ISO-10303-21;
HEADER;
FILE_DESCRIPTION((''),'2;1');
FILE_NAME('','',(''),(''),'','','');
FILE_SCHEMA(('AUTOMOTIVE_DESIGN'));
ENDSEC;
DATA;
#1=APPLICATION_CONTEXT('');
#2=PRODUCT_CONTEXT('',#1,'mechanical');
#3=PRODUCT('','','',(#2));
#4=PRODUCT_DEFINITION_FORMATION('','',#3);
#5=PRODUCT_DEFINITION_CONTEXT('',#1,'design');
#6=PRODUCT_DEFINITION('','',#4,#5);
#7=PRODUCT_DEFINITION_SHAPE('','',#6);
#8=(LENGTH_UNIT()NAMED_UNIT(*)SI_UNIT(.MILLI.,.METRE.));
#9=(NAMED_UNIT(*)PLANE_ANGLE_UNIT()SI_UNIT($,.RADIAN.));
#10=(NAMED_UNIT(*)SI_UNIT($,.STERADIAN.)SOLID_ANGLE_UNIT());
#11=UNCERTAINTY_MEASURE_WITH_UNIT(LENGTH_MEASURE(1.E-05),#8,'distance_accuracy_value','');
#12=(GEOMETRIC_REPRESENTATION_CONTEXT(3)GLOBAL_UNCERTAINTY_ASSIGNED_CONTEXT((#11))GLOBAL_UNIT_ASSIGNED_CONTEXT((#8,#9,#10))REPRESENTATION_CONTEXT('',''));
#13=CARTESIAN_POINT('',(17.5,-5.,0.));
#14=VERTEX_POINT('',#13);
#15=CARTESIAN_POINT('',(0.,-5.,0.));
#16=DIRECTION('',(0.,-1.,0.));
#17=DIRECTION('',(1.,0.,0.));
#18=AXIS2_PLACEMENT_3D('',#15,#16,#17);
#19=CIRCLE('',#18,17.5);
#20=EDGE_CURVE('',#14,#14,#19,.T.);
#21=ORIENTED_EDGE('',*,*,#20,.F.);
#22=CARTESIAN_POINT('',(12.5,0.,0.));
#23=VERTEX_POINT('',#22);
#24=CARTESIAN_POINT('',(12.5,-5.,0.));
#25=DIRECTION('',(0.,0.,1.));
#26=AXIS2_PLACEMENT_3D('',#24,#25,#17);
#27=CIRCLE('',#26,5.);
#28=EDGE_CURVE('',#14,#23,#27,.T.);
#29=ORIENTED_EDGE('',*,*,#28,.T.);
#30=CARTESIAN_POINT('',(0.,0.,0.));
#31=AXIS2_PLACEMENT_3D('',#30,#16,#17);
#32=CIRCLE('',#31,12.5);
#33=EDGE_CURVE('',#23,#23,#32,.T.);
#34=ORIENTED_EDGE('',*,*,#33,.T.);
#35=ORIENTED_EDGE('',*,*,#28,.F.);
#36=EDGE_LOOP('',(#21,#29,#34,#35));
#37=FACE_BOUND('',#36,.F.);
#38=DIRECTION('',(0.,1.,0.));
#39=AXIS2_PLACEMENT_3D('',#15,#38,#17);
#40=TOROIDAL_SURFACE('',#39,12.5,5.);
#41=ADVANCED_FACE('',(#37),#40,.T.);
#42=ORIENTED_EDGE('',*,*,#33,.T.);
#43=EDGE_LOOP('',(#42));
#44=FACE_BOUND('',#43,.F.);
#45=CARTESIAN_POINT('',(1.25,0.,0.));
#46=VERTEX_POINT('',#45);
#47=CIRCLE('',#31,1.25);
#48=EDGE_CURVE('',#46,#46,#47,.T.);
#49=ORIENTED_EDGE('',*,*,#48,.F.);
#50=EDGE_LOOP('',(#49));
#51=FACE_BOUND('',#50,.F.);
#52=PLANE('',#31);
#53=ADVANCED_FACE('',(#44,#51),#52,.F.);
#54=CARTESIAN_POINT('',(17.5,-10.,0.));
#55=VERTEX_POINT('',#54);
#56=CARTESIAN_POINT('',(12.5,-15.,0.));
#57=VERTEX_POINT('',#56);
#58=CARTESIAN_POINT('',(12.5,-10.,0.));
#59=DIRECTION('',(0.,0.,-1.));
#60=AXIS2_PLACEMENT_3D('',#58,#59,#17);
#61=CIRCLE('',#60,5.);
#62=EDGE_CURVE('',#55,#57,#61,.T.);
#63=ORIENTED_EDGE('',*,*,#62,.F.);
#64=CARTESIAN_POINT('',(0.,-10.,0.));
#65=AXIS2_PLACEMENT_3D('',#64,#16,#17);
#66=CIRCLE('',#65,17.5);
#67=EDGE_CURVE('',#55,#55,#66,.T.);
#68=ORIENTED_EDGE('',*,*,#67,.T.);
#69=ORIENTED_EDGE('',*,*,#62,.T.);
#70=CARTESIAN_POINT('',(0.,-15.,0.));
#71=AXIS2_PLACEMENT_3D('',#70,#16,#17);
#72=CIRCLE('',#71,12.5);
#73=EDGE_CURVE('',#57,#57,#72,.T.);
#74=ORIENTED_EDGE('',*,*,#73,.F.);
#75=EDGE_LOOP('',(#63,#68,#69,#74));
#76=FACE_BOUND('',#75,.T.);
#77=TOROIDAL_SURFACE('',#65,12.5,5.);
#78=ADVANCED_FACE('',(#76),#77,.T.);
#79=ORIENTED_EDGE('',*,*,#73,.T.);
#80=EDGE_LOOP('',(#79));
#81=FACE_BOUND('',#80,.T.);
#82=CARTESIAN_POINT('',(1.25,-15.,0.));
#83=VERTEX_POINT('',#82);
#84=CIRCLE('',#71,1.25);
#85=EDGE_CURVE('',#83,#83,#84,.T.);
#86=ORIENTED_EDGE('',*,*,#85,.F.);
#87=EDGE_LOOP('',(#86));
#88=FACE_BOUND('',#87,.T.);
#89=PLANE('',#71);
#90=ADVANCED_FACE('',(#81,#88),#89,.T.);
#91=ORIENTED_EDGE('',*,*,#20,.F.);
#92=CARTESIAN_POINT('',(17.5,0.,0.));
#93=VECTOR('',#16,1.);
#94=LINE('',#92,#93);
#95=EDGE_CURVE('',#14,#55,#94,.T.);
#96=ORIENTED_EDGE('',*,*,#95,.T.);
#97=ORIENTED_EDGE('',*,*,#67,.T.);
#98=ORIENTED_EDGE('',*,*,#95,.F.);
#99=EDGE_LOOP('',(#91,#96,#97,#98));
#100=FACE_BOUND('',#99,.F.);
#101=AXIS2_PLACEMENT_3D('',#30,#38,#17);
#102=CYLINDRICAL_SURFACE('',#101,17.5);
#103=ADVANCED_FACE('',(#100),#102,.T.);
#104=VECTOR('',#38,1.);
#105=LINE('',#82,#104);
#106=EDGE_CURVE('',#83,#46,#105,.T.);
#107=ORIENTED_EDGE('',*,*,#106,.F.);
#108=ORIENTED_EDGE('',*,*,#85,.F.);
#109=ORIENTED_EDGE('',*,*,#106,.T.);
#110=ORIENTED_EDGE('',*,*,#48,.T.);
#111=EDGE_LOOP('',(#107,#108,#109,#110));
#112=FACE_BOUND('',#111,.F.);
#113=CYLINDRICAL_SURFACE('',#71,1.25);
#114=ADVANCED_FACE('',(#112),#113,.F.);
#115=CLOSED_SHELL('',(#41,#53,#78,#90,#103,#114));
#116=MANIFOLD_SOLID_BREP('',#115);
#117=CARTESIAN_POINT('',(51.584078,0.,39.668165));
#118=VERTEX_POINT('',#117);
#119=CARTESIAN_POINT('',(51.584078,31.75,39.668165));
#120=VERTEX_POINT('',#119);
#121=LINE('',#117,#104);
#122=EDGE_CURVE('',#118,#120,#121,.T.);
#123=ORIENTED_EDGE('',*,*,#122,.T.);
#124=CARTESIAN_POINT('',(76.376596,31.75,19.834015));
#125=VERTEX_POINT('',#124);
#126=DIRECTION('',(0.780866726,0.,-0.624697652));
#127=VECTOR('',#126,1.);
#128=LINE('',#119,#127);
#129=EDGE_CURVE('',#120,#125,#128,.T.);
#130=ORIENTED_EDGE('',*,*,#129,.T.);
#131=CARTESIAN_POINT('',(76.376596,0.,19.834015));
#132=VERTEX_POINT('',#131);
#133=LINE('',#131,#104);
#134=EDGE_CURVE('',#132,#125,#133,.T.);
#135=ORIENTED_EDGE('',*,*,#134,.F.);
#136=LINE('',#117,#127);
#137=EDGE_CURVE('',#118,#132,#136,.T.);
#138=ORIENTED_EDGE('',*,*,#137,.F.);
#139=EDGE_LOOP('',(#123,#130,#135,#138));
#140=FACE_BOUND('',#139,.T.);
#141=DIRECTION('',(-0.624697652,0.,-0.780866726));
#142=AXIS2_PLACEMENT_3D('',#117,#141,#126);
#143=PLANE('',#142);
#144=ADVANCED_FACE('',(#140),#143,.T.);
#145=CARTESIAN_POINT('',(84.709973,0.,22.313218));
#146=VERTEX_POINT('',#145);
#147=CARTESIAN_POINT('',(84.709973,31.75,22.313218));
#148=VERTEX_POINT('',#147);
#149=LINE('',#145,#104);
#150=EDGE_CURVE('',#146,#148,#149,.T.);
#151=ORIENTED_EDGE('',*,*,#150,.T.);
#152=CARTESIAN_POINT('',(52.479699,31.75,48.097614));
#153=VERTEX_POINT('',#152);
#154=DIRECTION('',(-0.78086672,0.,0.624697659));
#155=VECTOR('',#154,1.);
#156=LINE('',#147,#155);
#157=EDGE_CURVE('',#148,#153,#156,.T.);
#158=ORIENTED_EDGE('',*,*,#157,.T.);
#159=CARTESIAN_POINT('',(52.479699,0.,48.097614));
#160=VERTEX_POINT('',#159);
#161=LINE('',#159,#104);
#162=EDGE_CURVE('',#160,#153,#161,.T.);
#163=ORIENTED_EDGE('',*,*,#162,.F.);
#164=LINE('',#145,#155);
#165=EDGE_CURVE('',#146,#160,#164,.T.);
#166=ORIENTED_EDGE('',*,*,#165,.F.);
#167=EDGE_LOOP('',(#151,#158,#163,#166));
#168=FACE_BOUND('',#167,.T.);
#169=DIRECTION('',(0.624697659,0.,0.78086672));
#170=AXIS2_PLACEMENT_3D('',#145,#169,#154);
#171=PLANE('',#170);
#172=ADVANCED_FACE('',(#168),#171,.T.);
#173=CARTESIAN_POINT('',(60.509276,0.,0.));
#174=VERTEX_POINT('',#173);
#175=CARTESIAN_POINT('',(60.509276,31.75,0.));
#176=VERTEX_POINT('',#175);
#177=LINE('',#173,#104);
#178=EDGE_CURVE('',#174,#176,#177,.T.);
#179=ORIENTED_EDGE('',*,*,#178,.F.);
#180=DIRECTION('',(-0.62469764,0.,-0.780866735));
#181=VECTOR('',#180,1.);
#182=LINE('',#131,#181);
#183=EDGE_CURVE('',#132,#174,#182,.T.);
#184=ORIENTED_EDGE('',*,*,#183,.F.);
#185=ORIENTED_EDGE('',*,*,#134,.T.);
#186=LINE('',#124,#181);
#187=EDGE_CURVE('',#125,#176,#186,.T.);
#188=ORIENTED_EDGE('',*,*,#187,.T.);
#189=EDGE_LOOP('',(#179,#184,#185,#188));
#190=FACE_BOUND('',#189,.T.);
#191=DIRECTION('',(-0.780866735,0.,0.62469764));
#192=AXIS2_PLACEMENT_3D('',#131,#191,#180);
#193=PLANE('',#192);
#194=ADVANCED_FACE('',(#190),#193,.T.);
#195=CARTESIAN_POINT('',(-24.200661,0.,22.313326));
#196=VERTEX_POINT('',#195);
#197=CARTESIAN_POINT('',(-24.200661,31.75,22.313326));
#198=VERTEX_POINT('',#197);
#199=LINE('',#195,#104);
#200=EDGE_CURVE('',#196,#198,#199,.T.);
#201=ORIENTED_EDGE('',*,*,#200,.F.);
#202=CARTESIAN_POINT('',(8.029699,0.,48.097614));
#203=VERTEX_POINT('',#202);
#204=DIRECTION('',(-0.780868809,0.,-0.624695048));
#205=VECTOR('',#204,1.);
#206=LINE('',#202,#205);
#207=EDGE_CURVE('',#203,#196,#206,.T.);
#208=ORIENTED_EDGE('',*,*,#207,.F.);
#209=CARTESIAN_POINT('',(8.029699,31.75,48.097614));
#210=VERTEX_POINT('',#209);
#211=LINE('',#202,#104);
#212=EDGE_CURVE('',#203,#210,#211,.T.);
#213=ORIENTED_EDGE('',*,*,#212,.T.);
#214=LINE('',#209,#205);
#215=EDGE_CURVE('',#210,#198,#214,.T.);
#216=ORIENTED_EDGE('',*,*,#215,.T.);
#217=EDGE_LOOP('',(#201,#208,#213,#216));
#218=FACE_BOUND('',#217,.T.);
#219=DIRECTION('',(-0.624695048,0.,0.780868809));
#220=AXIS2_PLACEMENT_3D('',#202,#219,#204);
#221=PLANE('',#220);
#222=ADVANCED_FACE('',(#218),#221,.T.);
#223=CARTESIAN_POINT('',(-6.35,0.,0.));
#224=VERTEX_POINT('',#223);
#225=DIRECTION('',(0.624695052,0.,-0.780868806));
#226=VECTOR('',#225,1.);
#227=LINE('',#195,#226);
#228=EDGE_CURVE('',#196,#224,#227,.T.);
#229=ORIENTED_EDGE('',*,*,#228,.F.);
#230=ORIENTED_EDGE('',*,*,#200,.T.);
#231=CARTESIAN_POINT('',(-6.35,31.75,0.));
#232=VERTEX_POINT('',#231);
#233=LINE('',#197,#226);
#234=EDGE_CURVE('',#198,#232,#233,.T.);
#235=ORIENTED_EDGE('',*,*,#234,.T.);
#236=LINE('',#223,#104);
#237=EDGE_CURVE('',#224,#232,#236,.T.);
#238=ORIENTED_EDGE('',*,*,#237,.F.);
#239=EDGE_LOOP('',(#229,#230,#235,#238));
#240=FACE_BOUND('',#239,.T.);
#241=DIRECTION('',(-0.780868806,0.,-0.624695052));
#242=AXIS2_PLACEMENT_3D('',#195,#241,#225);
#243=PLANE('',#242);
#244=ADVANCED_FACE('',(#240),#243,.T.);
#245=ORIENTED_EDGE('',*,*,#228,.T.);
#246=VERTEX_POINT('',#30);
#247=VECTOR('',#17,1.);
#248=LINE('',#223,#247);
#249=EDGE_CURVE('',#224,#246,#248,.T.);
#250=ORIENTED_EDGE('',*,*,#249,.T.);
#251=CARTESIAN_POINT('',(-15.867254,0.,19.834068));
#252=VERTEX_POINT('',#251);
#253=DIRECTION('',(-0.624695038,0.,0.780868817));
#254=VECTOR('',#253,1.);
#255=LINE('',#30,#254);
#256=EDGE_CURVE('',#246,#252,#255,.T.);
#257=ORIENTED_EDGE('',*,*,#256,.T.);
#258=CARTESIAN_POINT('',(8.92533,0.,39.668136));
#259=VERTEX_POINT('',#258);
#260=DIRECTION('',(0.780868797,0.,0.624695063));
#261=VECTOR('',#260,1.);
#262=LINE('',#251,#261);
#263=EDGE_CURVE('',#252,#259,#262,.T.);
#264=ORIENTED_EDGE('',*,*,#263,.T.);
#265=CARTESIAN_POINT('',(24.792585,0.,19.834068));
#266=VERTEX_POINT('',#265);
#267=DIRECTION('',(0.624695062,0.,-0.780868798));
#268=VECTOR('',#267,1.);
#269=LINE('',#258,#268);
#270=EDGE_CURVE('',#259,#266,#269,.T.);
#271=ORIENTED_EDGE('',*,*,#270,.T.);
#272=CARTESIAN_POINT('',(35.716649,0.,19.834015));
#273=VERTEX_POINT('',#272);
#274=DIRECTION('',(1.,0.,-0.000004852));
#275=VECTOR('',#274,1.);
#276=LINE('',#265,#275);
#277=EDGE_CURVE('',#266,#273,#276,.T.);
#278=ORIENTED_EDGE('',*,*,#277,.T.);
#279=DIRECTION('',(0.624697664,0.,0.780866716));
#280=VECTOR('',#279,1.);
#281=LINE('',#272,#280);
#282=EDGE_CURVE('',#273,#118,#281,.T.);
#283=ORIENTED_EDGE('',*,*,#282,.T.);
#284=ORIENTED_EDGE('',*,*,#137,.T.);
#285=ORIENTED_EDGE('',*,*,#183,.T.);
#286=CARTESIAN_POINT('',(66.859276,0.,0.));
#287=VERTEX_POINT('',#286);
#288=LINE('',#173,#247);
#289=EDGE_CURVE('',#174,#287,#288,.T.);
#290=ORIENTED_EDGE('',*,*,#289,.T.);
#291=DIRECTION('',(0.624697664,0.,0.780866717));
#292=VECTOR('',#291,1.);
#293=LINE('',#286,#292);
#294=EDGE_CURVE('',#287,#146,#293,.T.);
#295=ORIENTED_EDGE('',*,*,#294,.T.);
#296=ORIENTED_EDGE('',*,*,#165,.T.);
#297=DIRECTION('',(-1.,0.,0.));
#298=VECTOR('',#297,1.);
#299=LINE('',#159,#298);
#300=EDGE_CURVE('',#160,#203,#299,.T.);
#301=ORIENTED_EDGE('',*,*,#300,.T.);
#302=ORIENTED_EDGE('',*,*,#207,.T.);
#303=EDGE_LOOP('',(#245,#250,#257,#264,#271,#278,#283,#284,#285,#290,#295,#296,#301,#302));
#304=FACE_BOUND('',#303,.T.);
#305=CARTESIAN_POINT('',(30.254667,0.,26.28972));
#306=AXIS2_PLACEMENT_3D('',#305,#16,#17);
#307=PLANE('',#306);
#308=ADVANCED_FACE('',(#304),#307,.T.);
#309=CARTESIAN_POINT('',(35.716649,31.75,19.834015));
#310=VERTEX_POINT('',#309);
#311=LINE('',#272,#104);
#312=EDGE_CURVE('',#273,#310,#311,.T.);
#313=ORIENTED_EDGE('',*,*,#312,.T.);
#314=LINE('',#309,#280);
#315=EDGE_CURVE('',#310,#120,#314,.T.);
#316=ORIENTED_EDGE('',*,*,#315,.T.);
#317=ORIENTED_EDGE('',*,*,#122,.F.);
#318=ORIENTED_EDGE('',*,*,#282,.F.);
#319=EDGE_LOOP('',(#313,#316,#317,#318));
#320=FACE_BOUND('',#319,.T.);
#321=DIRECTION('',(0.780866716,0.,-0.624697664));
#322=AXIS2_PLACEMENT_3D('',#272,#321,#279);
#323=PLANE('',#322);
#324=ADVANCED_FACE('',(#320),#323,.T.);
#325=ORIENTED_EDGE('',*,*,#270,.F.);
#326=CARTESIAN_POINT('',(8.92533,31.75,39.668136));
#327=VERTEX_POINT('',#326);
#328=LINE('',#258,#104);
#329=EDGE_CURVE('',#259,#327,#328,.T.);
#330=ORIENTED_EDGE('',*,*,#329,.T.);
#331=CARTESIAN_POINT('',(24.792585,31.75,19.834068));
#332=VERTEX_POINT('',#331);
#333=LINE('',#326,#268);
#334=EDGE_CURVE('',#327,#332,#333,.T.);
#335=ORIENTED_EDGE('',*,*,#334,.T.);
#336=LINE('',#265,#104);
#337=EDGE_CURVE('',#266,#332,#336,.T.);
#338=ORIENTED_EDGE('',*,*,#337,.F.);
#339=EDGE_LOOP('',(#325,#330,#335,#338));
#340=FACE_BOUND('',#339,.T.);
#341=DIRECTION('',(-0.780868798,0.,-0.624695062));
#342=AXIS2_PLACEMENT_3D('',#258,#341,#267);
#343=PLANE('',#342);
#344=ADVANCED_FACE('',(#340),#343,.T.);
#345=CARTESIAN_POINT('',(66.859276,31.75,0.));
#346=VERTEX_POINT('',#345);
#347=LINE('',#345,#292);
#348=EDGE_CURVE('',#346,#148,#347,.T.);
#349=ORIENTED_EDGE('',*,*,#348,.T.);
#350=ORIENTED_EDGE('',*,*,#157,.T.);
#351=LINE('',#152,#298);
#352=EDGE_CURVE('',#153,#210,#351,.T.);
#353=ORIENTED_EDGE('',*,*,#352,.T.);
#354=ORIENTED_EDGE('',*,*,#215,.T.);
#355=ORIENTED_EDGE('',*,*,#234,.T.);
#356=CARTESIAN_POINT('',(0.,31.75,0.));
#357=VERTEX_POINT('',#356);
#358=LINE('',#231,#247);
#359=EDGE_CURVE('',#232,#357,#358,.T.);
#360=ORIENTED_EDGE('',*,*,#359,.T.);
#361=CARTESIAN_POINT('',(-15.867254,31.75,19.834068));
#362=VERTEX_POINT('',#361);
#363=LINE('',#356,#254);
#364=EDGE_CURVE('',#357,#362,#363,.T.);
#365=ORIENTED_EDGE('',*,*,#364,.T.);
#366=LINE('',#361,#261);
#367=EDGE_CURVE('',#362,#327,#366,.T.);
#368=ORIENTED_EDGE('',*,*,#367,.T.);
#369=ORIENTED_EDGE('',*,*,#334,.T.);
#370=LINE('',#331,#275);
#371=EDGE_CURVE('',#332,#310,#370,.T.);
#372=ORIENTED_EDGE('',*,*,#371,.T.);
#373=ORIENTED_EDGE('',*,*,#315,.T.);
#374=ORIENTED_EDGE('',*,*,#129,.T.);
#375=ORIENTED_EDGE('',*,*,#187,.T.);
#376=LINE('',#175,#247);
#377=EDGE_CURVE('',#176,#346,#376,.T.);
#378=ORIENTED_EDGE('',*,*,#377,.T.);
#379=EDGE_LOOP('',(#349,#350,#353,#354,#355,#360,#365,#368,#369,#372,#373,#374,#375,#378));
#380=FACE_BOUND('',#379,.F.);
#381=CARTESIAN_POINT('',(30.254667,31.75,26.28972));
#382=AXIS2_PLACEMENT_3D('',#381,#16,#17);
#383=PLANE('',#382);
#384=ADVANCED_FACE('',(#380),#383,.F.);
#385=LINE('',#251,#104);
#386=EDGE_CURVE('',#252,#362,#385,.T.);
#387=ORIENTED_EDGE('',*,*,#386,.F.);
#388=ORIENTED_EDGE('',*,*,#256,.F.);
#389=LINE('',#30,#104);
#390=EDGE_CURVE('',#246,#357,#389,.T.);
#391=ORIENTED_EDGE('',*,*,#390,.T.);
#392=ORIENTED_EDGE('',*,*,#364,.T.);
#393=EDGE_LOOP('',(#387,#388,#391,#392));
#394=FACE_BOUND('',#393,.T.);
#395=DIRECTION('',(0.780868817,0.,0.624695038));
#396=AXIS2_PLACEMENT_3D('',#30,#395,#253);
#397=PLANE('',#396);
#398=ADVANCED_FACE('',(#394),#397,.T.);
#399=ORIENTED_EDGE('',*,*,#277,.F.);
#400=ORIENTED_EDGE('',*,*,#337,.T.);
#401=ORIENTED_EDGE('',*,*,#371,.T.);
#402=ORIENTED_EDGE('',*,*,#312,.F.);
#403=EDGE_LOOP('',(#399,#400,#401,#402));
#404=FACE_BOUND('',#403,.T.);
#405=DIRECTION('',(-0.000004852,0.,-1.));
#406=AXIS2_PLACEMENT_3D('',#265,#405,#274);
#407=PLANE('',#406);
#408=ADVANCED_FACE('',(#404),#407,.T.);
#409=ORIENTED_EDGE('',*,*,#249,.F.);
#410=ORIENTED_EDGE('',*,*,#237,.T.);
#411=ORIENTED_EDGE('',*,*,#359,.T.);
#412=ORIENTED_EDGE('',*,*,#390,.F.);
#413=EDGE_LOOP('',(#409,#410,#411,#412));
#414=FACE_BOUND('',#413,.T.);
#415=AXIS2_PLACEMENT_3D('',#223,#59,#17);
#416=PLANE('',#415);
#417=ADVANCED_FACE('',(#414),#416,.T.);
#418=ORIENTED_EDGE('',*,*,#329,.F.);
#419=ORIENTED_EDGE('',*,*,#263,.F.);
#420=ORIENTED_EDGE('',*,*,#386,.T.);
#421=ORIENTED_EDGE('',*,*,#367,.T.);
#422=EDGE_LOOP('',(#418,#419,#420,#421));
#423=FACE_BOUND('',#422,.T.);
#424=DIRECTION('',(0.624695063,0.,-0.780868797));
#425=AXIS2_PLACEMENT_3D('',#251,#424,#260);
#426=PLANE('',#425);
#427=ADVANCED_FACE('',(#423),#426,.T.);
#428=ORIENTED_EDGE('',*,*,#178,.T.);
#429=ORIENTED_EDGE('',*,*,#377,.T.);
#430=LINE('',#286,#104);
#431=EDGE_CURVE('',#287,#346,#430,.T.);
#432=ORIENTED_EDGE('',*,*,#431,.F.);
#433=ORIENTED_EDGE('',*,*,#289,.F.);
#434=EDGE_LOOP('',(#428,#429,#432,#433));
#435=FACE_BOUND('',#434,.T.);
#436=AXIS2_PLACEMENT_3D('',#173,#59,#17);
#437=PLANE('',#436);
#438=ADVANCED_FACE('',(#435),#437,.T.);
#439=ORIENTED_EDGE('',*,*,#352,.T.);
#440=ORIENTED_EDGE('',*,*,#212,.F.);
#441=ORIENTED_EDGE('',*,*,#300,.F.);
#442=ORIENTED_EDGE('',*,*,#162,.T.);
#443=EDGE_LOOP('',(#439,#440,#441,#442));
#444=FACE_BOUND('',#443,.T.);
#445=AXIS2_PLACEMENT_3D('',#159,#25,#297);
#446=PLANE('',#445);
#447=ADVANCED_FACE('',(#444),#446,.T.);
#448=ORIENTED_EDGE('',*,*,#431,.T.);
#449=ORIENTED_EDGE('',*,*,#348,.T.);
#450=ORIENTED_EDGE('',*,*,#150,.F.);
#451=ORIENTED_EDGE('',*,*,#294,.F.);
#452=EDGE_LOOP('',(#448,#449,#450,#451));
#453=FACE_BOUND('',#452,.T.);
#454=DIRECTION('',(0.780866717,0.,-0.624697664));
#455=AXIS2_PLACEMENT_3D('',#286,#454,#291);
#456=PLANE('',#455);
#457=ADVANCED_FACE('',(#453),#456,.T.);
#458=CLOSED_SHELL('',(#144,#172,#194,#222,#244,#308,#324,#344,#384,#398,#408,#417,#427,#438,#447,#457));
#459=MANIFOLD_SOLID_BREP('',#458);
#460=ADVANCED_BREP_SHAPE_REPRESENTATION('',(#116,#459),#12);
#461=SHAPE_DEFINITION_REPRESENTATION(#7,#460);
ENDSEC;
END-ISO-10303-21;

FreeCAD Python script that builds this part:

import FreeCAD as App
import Part
import Sketcher

V = App.Vector
Q = App.Units.Quantity


def edges_at(feature, points):
    """Names of the edges that pass closest to the given points."""
    edges = feature.Shape.Edges
    near = lambda p: min(range(len(edges)), key=lambda i: edges[i].distToShape(Part.Vertex(*p))[0])
    return sorted({f"Edge{near(p) + 1}" for p in points})


def add_polygon(sketch, points):
    """Adds a closed chain of lines whose ends are joined by coincident constraints."""
    first, n = sketch.GeometryCount, len(points)
    for a, b in zip(points, points[1:] + points[:1]):
        sketch.addGeometry(Part.LineSegment(App.Vector(*a, 0), App.Vector(*b, 0)), False)
    for i in range(n):
        sketch.addConstraint(Sketcher.Constraint("Coincident", first + i, 2, first + (i + 1) % n, 1))

doc = App.newDocument("Part")
body = doc.addObject("PartDesign::Body", "Body")

# Sketch on XZ plane
sketch1 = doc.addObject("Sketcher::SketchObject", "Sketch")
body.addObject(sketch1)
sketch1.AttachmentSupport = (doc.XZ_Plane, [""])
sketch1.MapMode = "FlatFace"
add_polygon(sketch1, [(-6.35, 0), (0, 0), (-15.867254, 19.834068), (8.92533, 39.668136), (24.792585, 19.834068), (35.716649, 19.834015), (51.584078, 39.668165), (76.376596, 19.834015), (60.509276, 0), (66.859276, 0), (84.709973, 22.313218), (52.479699, 48.097614), (8.029699, 48.097614), (-24.200661, 22.313326)])  # lines 0-13
sketch1.addConstraint([
    Sketcher.Constraint("Horizontal", 0),
    Sketcher.Constraint("Horizontal", 8),
    Sketcher.Constraint("Horizontal", 11),
    Sketcher.Constraint("Coincident", 0, 2, -1, 1),
    Sketcher.Constraint("PointOnObject", 7, 2, -1),
    Sketcher.Constraint("Perpendicular", 1, 2),
    Sketcher.Constraint("Perpendicular", 2, 3),
    Sketcher.Constraint("Perpendicular", 5, 6),
    Sketcher.Constraint("Perpendicular", 6, 7),
    Sketcher.Constraint("Parallel", 7, 9),
    Sketcher.Constraint("Perpendicular", 9, 10),
    Sketcher.Constraint("Perpendicular", 3, 12),
    Sketcher.Constraint("Perpendicular", 12, 13),
    Sketcher.Constraint("Horizontal", 1, 2, 3, 2),
    Sketcher.Constraint("Horizontal", 4, 2, 6, 2),
    Sketcher.Constraint("Equal", 0, 8),
    Sketcher.Constraint("Equal", 1, 3),
    Sketcher.Constraint("Equal", 2, 6),
    Sketcher.Constraint("Equal", 3, 7),
    Sketcher.Constraint("Equal", 10, 12),
    Sketcher.Constraint("Distance", 1, Q("1 in")),
    Sketcher.Constraint("DistanceX", 0, 1, 0, 2, Q("0.25 in")),
    Sketcher.Constraint("DistanceX", 11, 2, 11, 1, Q("1.75 in")),
    Sketcher.Constraint("Distance", 2, Q("1.25 in")),
    Sketcher.Constraint("Angle", 5, Q("51.34 deg")),
    Sketcher.Constraint("Distance", 10, Q("1.625 in")),
    Sketcher.Constraint("Distance", 13, Q("1.125 in")),
])
pad1 = doc.addObject("PartDesign::Pad", "Pad")
body.addObject(pad1)
pad1.Profile = sketch1
pad1.Length = Q("1.25 in")
pad1.Reversed = True
body2 = doc.addObject("PartDesign::Body", "Body001")

# Sketch on XZ plane
sketch2 = doc.addObject("Sketcher::SketchObject", "Sketch001")
body2.addObject(sketch2)
sketch2.AttachmentSupport = (doc.getObject("XZ_Plane001"), [""])
sketch2.MapMode = "FlatFace"
sketch2.addGeometry(Part.Circle(V(0, 0, 0), V(0, 0, 1), 17.5), False)
sketch2.addConstraint([
    Sketcher.Constraint("Coincident", 0, 3, -1, 1),
    Sketcher.Constraint("Diameter", 0, 35.0),
])
pad2 = doc.addObject("PartDesign::Pad", "Pad001")
body2.addObject(pad2)
pad2.Profile = sketch2
pad2.Length = 15
doc.recompute()

fillet = doc.addObject("PartDesign::Fillet", "Fillet")
body2.addObject(fillet)
fillet.Base = (pad2, edges_at(pad2, [(-17.5, -15, 0), (-17.5, 0, 0)]))
fillet.Radius = 5

# Sketch on XZ plane
sketch3 = doc.addObject("Sketcher::SketchObject", "Sketch002")
body2.addObject(sketch3)
sketch3.AttachmentSupport = (doc.getObject("XZ_Plane001"), [""])
sketch3.MapMode = "FlatFace"
sketch3.AttachmentOffset = App.Placement(V(0, 0, 15), App.Rotation())
sketch3.addGeometry(Part.Circle(V(0, 0, 0), V(0, 0, 1), 1.25), False)
sketch3.addConstraint([
    Sketcher.Constraint("Coincident", 0, 3, -1, 1),
    Sketcher.Constraint("Diameter", 0, 2.5),
])
pocket1 = doc.addObject("PartDesign::Pocket", "Pocket")
body2.addObject(pocket1)
pocket1.Profile = sketch3
pocket1.Length = 15

doc.recompute()
